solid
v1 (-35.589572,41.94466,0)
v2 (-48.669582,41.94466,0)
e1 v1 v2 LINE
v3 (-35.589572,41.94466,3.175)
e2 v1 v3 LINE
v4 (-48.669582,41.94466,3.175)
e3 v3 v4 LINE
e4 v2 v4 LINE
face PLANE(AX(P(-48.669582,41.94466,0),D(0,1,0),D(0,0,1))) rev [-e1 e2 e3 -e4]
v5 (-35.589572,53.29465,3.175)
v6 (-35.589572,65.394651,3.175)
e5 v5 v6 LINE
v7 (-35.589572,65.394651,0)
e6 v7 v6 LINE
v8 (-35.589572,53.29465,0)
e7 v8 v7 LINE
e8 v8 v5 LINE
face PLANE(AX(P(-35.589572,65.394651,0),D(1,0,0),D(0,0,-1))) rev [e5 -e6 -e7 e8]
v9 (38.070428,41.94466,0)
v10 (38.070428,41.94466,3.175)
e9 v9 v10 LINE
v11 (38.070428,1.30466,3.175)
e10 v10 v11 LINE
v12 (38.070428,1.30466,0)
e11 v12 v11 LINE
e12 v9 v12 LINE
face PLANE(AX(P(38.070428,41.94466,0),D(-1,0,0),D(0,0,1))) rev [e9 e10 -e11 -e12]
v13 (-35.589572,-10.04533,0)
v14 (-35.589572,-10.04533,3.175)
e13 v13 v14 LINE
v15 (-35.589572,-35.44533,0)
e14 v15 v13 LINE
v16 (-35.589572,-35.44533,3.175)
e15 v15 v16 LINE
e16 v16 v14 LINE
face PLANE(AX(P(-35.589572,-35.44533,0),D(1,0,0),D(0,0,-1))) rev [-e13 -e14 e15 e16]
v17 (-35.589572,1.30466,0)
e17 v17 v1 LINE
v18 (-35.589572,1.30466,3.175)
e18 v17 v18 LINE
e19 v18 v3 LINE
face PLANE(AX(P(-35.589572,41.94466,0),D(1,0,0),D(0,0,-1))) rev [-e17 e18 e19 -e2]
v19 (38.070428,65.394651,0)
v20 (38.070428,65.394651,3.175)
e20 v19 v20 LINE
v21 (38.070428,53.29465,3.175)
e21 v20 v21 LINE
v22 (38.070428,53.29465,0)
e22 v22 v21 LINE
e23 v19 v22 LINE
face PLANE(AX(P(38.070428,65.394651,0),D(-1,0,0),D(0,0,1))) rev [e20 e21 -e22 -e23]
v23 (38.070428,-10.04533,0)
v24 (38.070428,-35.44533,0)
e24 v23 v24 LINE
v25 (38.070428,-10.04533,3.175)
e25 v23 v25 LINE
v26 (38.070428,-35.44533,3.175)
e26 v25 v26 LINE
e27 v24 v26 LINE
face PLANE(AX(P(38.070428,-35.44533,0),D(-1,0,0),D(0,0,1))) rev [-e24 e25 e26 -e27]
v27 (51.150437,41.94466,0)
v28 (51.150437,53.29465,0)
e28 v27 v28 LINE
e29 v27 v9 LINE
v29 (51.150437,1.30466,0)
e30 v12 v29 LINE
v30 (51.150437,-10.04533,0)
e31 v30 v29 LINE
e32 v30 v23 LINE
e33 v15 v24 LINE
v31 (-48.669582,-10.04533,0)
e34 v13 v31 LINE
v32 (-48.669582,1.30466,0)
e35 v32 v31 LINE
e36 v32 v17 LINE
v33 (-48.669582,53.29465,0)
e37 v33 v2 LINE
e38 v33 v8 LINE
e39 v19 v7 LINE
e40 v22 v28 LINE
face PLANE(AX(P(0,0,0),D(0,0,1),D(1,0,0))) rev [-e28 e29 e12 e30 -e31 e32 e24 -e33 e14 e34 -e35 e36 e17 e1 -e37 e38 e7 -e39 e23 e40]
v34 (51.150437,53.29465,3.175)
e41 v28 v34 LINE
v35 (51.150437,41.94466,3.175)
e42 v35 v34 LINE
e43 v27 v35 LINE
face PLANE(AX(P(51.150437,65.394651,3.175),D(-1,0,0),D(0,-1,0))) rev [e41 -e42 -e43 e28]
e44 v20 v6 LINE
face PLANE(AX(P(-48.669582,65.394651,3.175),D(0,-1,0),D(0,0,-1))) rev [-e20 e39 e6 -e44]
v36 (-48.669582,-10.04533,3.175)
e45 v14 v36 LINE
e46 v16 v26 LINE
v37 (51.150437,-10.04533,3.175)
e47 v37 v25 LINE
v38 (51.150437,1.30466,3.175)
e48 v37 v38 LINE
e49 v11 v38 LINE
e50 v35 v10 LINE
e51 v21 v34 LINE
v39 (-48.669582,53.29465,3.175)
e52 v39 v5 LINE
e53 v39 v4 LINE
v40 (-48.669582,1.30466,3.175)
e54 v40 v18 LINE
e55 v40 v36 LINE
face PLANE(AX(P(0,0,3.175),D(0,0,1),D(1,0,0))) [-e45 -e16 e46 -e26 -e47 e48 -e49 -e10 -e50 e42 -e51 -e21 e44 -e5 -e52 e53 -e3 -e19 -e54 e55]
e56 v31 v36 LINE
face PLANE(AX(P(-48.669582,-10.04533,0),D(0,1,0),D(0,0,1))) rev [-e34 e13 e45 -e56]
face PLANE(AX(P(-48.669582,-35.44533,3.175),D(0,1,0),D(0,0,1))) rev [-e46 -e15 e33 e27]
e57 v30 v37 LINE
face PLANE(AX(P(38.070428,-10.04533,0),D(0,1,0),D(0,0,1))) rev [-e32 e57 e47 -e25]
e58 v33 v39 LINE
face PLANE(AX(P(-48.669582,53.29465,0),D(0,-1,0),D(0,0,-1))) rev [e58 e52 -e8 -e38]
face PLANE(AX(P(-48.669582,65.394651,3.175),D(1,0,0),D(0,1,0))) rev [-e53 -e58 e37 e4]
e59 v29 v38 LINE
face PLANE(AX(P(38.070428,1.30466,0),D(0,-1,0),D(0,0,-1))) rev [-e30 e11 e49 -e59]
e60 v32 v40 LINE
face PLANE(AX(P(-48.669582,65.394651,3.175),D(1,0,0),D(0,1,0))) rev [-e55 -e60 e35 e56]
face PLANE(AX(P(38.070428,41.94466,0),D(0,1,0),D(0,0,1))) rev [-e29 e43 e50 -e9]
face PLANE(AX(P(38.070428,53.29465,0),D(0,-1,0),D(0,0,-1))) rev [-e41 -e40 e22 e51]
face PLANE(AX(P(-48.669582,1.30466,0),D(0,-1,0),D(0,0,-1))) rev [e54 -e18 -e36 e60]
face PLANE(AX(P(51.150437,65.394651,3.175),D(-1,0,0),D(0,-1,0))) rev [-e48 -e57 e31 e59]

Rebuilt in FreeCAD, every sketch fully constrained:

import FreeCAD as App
import Part
import Sketcher
from FreeCAD import Vector
Q = App.Units.Quantity


def add_polygon(sketch, points):
    """Adds a closed chain of lines whose ends are joined by coincident constraints."""
    first, n = sketch.GeometryCount, len(points)
    for a, b in zip(points, points[1:] + points[:1]):
        sketch.addGeometry(Part.LineSegment(App.Vector(*a, 0), App.Vector(*b, 0)), False)
    for i in range(n):
        sketch.addConstraint(Sketcher.Constraint("Coincident", first + i, 2, first + (i + 1) % n, 1))

doc = App.newDocument("Part")
body = doc.addObject("PartDesign::Body", "Body")

sketch1 = body.newObject("Sketcher::SketchObject", "Sketch")
sketch1.AttachmentSupport = (doc.getObject("XY_Plane"), [""])
sketch1.MapMode = "FlatFace"
add_polygon(sketch1, [(-49, 65), (-49, -35), (51, -35), (51, 65)])
sketch1.addConstraint([
    Sketcher.Constraint("Vertical", 0),
    Sketcher.Constraint("Horizontal", 1),
    Sketcher.Constraint("Vertical", 2),
    Sketcher.Constraint("Horizontal", 3),
    Sketcher.Constraint("DistanceX", 1, 1, 1, 2, Q("99.820019 mm")),
    Sketcher.Constraint("DistanceY", 0, 2, 0, 1, Q("100.839981 mm")),
    Sketcher.Constraint("DistanceX", 0, 2, -1, 1, Q("48.669582 mm")),
    Sketcher.Constraint("DistanceY", 0, 2, -1, 1, Q("35.44533 mm")),
])
pad1 = body.newObject("PartDesign::Pad", "Pad")
pad1.Profile = sketch1
pad1.Length = Q("0.125 in")

sketch2 = body.newObject("Sketcher::SketchObject", "Sketch001")
sketch2.AttachmentSupport = (doc.getObject("XY_Plane"), [""])
sketch2.MapMode = "FlatFace"
sketch2.AttachmentOffset = App.Placement(Vector(0, 0, 0.125 * 25.4), App.Rotation())
add_polygon(sketch2, [(-49, 65), (-49, 53), (-36, 53), (-36, 65)])
add_polygon(sketch2, [(38, 65), (38, 53), (51, 53), (51, 65)])
add_polygon(sketch2, [(-49, 42), (-49, 1), (-36, 1), (-36, 42)])
add_polygon(sketch2, [(-49, -10), (-49, -35), (-36, -35), (-36, -10)])
add_polygon(sketch2, [(38, 42), (38, 1), (51, 1), (51, 42)])
add_polygon(sketch2, [(38, -10), (38, -35), (51, -35), (51, -10)])
sketch2.addConstraint([
    Sketcher.Constraint("Vertical", 0),
    Sketcher.Constraint("Horizontal", 1),
    Sketcher.Constraint("Vertical", 2),
    Sketcher.Constraint("Horizontal", 3),
    Sketcher.Constraint("Vertical", 4),
    Sketcher.Constraint("Horizontal", 5),
    Sketcher.Constraint("Vertical", 6),
    Sketcher.Constraint("Horizontal", 7),
    Sketcher.Constraint("Vertical", 8),
    Sketcher.Constraint("Horizontal", 9),
    Sketcher.Constraint("Vertical", 10),
    Sketcher.Constraint("Horizontal", 11),
    Sketcher.Constraint("Vertical", 12),
    Sketcher.Constraint("Horizontal", 13),
    Sketcher.Constraint("Vertical", 14),
    Sketcher.Constraint("Horizontal", 15),
    Sketcher.Constraint("Vertical", 16),
    Sketcher.Constraint("Horizontal", 17),
    Sketcher.Constraint("Vertical", 18),
    Sketcher.Constraint("Horizontal", 19),
    Sketcher.Constraint("Vertical", 20),
    Sketcher.Constraint("Horizontal", 21),
    Sketcher.Constraint("Vertical", 22),
    Sketcher.Constraint("Horizontal", 23),
    Sketcher.Constraint("Horizontal", 1, 2, 4, 2),
    Sketcher.Constraint("Horizontal", 3, 2, 6, 2),
    Sketcher.Constraint("Horizontal", 9, 2, 16, 2),
    Sketcher.Constraint("Horizontal", 11, 2, 18, 2),
    Sketcher.Constraint("Horizontal", 13, 2, 20, 2),
    Sketcher.Constraint("Horizontal", 15, 2, 22, 2),
    Sketcher.Constraint("Vertical", 3, 2, 8, 2),
    Sketcher.Constraint("Vertical", 2, 2, 9, 2),
    Sketcher.Constraint("Vertical", 11, 2, 12, 2),
    Sketcher.Constraint("Vertical", 10, 2, 13, 2),
    Sketcher.Constraint("Vertical", 7, 2, 16, 2),
    Sketcher.Constraint("Vertical", 6, 2, 17, 2),
    Sketcher.Constraint("Vertical", 19, 2, 20, 2),
    Sketcher.Constraint("Vertical", 18, 2, 21, 2),
    Sketcher.Constraint("Equal", 3, 5),
    Sketcher.Constraint("DistanceY", 12, 2, 12, 1, Q("1 in")),
    Sketcher.Constraint("DistanceY", 8, 2, 8, 1, Q("1.6 in")),
    Sketcher.Constraint("DistanceX", 1, 2, 4, 2, Q("2.9 in")),
    Sketcher.Constraint("DistanceY", 0, 2, 0, 1, Q("12.100001 mm")),
    Sketcher.Constraint("DistanceY", 12, 2, 0, 2, Q("3.4937 in")),
    Sketcher.Constraint("DistanceX", 1, 1, 1, 2, Q("13.080009 mm")),
    Sketcher.Constraint("DistanceX", 0, 2, -1, 1, Q("48.669582 mm")),
    Sketcher.Constraint("DistanceY", -1, 1, 0, 2, Q("53.29465 mm")),
    Sketcher.Constraint("DistanceY", -1, 1, 8, 2, Q("1.30466 mm")),
])
pocket1 = body.newObject("PartDesign::Pocket", "Pocket")
pocket1.Profile = sketch2
pocket1.Length = Q("0.125 in")

doc.recompute()
